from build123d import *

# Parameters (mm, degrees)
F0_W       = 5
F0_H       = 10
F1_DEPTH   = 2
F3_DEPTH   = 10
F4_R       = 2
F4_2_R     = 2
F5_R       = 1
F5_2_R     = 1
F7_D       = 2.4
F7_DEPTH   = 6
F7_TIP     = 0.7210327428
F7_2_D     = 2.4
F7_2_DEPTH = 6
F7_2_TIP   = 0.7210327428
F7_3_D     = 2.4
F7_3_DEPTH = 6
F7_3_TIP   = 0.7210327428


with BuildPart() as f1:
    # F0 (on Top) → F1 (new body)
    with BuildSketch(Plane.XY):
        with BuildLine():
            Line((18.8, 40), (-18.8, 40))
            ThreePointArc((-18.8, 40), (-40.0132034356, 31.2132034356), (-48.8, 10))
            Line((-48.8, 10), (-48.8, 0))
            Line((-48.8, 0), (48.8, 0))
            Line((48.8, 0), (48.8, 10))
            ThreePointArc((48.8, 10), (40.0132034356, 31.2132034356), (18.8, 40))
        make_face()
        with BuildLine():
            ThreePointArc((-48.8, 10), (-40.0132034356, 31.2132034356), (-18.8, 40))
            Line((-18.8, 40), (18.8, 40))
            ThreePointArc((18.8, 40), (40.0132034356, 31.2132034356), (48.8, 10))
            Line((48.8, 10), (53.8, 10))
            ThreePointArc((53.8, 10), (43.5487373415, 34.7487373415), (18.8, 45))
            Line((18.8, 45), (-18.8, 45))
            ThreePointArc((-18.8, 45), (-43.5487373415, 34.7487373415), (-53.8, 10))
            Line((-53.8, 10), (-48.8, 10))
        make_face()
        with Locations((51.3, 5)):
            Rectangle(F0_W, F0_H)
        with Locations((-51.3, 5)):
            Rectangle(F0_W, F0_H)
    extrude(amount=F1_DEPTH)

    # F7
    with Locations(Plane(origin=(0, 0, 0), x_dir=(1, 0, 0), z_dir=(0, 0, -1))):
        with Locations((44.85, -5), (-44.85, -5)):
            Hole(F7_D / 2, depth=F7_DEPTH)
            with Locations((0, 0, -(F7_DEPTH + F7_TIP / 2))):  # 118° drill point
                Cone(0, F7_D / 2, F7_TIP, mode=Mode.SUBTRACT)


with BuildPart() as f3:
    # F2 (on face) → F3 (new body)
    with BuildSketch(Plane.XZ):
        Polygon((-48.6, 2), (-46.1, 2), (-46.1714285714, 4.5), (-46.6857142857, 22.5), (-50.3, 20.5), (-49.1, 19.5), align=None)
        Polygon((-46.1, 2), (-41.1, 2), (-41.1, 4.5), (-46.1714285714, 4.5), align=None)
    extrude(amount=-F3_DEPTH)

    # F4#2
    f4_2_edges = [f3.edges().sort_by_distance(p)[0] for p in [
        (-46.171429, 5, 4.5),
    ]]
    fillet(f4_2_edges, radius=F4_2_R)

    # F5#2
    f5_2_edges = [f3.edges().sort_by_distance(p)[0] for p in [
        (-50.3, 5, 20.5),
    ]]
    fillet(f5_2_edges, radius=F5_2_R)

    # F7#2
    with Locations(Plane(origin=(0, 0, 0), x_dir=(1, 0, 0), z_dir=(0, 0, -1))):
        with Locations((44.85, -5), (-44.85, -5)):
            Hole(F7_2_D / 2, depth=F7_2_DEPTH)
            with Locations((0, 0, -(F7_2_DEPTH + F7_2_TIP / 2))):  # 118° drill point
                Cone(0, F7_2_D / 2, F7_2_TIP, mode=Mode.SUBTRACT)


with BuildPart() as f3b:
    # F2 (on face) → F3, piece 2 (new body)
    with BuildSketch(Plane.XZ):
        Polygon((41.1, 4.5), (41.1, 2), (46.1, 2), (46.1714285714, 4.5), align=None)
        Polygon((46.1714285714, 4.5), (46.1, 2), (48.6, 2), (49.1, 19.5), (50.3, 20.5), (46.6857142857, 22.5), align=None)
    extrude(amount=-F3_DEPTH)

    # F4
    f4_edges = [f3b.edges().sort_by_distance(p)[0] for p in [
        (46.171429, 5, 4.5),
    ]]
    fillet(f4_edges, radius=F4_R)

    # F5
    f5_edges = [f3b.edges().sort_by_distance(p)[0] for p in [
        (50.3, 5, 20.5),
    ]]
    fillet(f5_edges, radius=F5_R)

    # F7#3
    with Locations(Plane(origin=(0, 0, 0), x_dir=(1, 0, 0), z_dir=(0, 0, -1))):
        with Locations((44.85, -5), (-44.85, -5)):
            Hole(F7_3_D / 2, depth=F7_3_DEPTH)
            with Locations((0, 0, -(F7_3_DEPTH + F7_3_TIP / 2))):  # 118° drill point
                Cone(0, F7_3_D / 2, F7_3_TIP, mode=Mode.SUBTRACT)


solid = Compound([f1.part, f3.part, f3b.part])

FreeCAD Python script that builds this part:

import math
import FreeCAD as App
import Part
import Sketcher

V = App.Vector
Q = App.Units.Quantity


def edges_at(feature, points):
    """Names of the edges that pass closest to the given points."""
    edges = feature.Shape.Edges
    near = lambda p: min(range(len(edges)), key=lambda i: edges[i].distToShape(Part.Vertex(*p))[0])
    return sorted({f"Edge{near(p) + 1}" for p in points})


def add_polygon(sketch, points):
    """Adds a closed chain of lines whose ends are joined by coincident constraints."""
    first, n = sketch.GeometryCount, len(points)
    for a, b in zip(points, points[1:] + points[:1]):
        sketch.addGeometry(Part.LineSegment(App.Vector(*a, 0), App.Vector(*b, 0)), False)
    for i in range(n):
        sketch.addConstraint(Sketcher.Constraint("Coincident", first + i, 2, first + (i + 1) % n, 1))

doc = App.newDocument("Part")
body = doc.addObject("PartDesign::Body", "Body")

# Sketch on XY plane
sketch1 = body.newObject("Sketcher::SketchObject", "Sketch")
sketch1.AttachmentSupport = (doc.getObject("XY_Plane"), [""])
sketch1.MapMode = "FlatFace"
sketch1.addGeometry([
    Part.LineSegment(V(54, 0, 0), V(54, 10, 0)),  # 0
    Part.ArcOfCircle(Part.Circle(V(19, 10, 0), V(0, 0, 1), 35), math.radians(0), math.radians(90)),  # 1
    Part.LineSegment(V(19, 45, 0), V(-19, 45, 0)),  # 2
    Part.ArcOfCircle(Part.Circle(V(-19, 10, 0), V(0, 0, 1), 35), math.radians(90), math.radians(180)),  # 3
    Part.LineSegment(V(-54, 10, 0), V(-54, 0, 0)),  # 4
    Part.LineSegment(V(-54, 0, 0), V(54, 0, 0)),  # 5
], False)
sketch1.addConstraint([
    Sketcher.Constraint("Tangent", 0, 2, 1, 1),
    Sketcher.Constraint("Tangent", 1, 2, 2, 1),
    Sketcher.Constraint("Tangent", 2, 2, 3, 1),
    Sketcher.Constraint("Tangent", 3, 2, 4, 1),
    Sketcher.Constraint("Coincident", 4, 2, 5, 1),
    Sketcher.Constraint("Coincident", 5, 2, 0, 1),
    Sketcher.Constraint("Vertical", 0),
    Sketcher.Constraint("Horizontal", 2),
    Sketcher.Constraint("Vertical", 4),
    Sketcher.Constraint("Horizontal", 5),
    Sketcher.Constraint("Equal", 1, 3),
    Sketcher.Constraint("Symmetric", 4, 2, 5, 2, -1, 1),
    Sketcher.Constraint("Radius", 1, Q("35 mm")),
    Sketcher.Constraint("DistanceY", 0, 1, 0, 2, Q("10 mm")),
    Sketcher.Constraint("DistanceX", 2, 2, 2, 1, Q("37.6 mm")),
])
pad1 = body.newObject("PartDesign::Pad", "Pad")
pad1.Profile = sketch1
pad1.Length = 2

# Sketch on XY plane
sketch2 = body.newObject("Sketcher::SketchObject", "Sketch001")
sketch2.AttachmentSupport = (doc.getObject("XY_Plane"), [""])
sketch2.MapMode = "FlatFace"
sketch2.addGeometry([
    Part.Circle(V(44.9, 5, 0), V(0, 0, 1), 1.2),
    Part.Circle(V(-44.9, 5, 0), V(0, 0, 1), 1.2),
], False)
sketch2.addConstraint([
    Sketcher.Constraint("Equal", 0, 1),
    Sketcher.Constraint("Symmetric", 0, 3, 1, 3, -2),
    Sketcher.Constraint("Diameter", 0, Q("2.4 mm")),
    Sketcher.Constraint("DistanceY", -1, 1, 0, 3, Q("5 mm")),
    Sketcher.Constraint("DistanceX", 1, 3, 0, 3, Q("89.7 mm")),
])
doc.recompute()
hole = body.newObject("PartDesign::Hole", "Hole")
hole.Profile = sketch2
hole.ThreadType = "None"
hole.Diameter = 2.4
hole.DepthType = "Dimension"
hole.Depth = 6
hole.DrillPoint = "Angled"
hole.DrillPointAngle = 118
hole.Reversed = True
body2 = doc.addObject("PartDesign::Body", "Body001")

# Sketch on XZ plane
sketch3 = body2.newObject("Sketcher::SketchObject", "Sketch002")
sketch3.AttachmentSupport = (doc.getObject("XZ_Plane001"), [""])
sketch3.MapMode = "FlatFace"
add_polygon(sketch3, [(-48.6, 2), (-41.1, 2), (-41.1, 4.5), (-46.2, 4.5), (-46.7, 22.5), (-50.3, 20.5), (-49.1, 19.5)])  # lines 0-6
sketch3.addConstraint([
    Sketcher.Constraint("Horizontal", 0),
    Sketcher.Constraint("Vertical", 1),
    Sketcher.Constraint("Horizontal", 2),
    Sketcher.Constraint("Parallel", 3, 6),
    Sketcher.Constraint("DistanceX", 0, 1, 0, 2, Q("7.5 mm")),
    Sketcher.Constraint("DistanceY", 1, 1, 1, 2, Q("2.5 mm")),
    Sketcher.Constraint("DistanceY", -1, 1, 0, 2, Q("2 mm")),
    Sketcher.Constraint("DistanceY", 2, 2, 3, 2, Q("18 mm")),
    Sketcher.Constraint("DistanceY", 4, 2, 3, 2, Q("2 mm")),
    Sketcher.Constraint("DistanceY", 5, 2, 4, 2, Q("1 mm")),
    Sketcher.Constraint("DistanceX", 5, 2, 1, 2, Q("8 mm")),
    Sketcher.Constraint("DistanceX", 0, 2, -1, 1, Q("41.1 mm")),
    Sketcher.Constraint("DistanceX", 4, 2, -1, 1, Q("50.3 mm")),
    Sketcher.Constraint("DistanceX", 2, 2, 2, 1, Q("5.071429 mm")),
])
pad2 = body2.newObject("PartDesign::Pad", "Pad001")
pad2.Profile = sketch3
pad2.Length = 10
pad2.Reversed = True
doc.recompute()

fillet = body2.newObject("PartDesign::Fillet", "Fillet")
fillet.Base = (pad2, edges_at(pad2, [(-46.171, 5, 4.5)]))
fillet.Radius = 2
doc.recompute()

fillet2 = body2.newObject("PartDesign::Fillet", "Fillet001")
fillet2.Base = (fillet, edges_at(fillet, [(-50.3, 5, 20.5)]))
fillet2.Radius = 1

# Sketch on XY plane
sketch4 = body2.newObject("Sketcher::SketchObject", "Sketch003")
sketch4.AttachmentSupport = (doc.getObject("XY_Plane001"), [""])
sketch4.MapMode = "FlatFace"
sketch4.addGeometry([
    Part.Circle(V(44.9, 5, 0), V(0, 0, 1), 1.2),
    Part.Circle(V(-44.9, 5, 0), V(0, 0, 1), 1.2),
], False)
sketch4.addConstraint([
    Sketcher.Constraint("Equal", 0, 1),
    Sketcher.Constraint("Symmetric", 0, 3, 1, 3, -2),
    Sketcher.Constraint("Diameter", 0, Q("2.4 mm")),
    Sketcher.Constraint("DistanceY", -1, 1, 0, 3, Q("5 mm")),
    Sketcher.Constraint("DistanceX", 1, 3, 0, 3, Q("89.7 mm")),
])
doc.recompute()
hole2 = body2.newObject("PartDesign::Hole", "Hole001")
hole2.Profile = sketch4
hole2.ThreadType = "None"
hole2.Diameter = 2.4
hole2.DepthType = "Dimension"
hole2.Depth = 6
hole2.DrillPoint = "Angled"
hole2.DrillPointAngle = 118
hole2.Reversed = True
body3 = doc.addObject("PartDesign::Body", "Body002")

# Sketch on XZ plane
sketch5 = body3.newObject("Sketcher::SketchObject", "Sketch004")
sketch5.AttachmentSupport = (doc.getObject("XZ_Plane002"), [""])
sketch5.MapMode = "FlatFace"
add_polygon(sketch5, [(41.1, 4.5), (41.1, 2), (48.6, 2), (49.1, 19.5), (50.3, 20.5), (46.7, 22.5), (46.2, 4.5)])  # lines 0-6
sketch5.addConstraint([
    Sketcher.Constraint("Vertical", 0),
    Sketcher.Constraint("Horizontal", 1),
    Sketcher.Constraint("Horizontal", 6),
    Sketcher.Constraint("Parallel", 2, 5),
    Sketcher.Constraint("DistanceX", 1, 1, 1, 2, Q("7.5 mm")),
    Sketcher.Constraint("DistanceY", 0, 2, 0, 1, Q("2.5 mm")),
    Sketcher.Constraint("DistanceY", -1, 1, 0, 2, Q("2 mm")),
    Sketcher.Constraint("DistanceX", 0, 2, 2, 2, Q("8 mm")),
    Sketcher.Constraint("DistanceY", 2, 2, 3, 2, Q("1 mm")),
    Sketcher.Constraint("DistanceY", 2, 2, 4, 2, Q("3 mm")),
    Sketcher.Constraint("DistanceY", 5, 2, 2, 2, Q("15 mm")),
    Sketcher.Constraint("DistanceX", -1, 1, 0, 2, Q("41.1 mm")),
    Sketcher.Constraint("DistanceX", -1, 1, 3, 2, Q("50.3 mm")),
    Sketcher.Constraint("DistanceX", 6, 2, 6, 1, Q("5.071429 mm")),
])
pad3 = body3.newObject("PartDesign::Pad", "Pad002")
pad3.Profile = sketch5
pad3.Length = 10
pad3.Reversed = True
doc.recompute()

fillet3 = body3.newObject("PartDesign::Fillet", "Fillet002")
fillet3.Base = (pad3, edges_at(pad3, [(46.171, 5, 4.5)]))
fillet3.Radius = 2
doc.recompute()

fillet4 = body3.newObject("PartDesign::Fillet", "Fillet003")
fillet4.Base = (fillet3, edges_at(fillet3, [(50.3, 5, 20.5)]))
fillet4.Radius = 1

# Sketch on XY plane
sketch6 = body3.newObject("Sketcher::SketchObject", "Sketch005")
sketch6.AttachmentSupport = (doc.getObject("XY_Plane002"), [""])
sketch6.MapMode = "FlatFace"
sketch6.addGeometry([
    Part.Circle(V(44.9, 5, 0), V(0, 0, 1), 1.2),
    Part.Circle(V(-44.9, 5, 0), V(0, 0, 1), 1.2),
], False)
sketch6.addConstraint([
    Sketcher.Constraint("Equal", 0, 1),
    Sketcher.Constraint("Symmetric", 0, 3, 1, 3, -2),
    Sketcher.Constraint("Diameter", 0, Q("2.4 mm")),
    Sketcher.Constraint("DistanceY", -1, 1, 0, 3, Q("5 mm")),
    Sketcher.Constraint("DistanceX", 1, 3, 0, 3, Q("89.7 mm")),
])
doc.recompute()
hole3 = body3.newObject("PartDesign::Hole", "Hole002")
hole3.Profile = sketch6
hole3.ThreadType = "None"
hole3.Diameter = 2.4
hole3.DepthType = "Dimension"
hole3.Depth = 6
hole3.DrillPoint = "Angled"
hole3.DrillPointAngle = 118
hole3.Reversed = True

doc.recompute()
